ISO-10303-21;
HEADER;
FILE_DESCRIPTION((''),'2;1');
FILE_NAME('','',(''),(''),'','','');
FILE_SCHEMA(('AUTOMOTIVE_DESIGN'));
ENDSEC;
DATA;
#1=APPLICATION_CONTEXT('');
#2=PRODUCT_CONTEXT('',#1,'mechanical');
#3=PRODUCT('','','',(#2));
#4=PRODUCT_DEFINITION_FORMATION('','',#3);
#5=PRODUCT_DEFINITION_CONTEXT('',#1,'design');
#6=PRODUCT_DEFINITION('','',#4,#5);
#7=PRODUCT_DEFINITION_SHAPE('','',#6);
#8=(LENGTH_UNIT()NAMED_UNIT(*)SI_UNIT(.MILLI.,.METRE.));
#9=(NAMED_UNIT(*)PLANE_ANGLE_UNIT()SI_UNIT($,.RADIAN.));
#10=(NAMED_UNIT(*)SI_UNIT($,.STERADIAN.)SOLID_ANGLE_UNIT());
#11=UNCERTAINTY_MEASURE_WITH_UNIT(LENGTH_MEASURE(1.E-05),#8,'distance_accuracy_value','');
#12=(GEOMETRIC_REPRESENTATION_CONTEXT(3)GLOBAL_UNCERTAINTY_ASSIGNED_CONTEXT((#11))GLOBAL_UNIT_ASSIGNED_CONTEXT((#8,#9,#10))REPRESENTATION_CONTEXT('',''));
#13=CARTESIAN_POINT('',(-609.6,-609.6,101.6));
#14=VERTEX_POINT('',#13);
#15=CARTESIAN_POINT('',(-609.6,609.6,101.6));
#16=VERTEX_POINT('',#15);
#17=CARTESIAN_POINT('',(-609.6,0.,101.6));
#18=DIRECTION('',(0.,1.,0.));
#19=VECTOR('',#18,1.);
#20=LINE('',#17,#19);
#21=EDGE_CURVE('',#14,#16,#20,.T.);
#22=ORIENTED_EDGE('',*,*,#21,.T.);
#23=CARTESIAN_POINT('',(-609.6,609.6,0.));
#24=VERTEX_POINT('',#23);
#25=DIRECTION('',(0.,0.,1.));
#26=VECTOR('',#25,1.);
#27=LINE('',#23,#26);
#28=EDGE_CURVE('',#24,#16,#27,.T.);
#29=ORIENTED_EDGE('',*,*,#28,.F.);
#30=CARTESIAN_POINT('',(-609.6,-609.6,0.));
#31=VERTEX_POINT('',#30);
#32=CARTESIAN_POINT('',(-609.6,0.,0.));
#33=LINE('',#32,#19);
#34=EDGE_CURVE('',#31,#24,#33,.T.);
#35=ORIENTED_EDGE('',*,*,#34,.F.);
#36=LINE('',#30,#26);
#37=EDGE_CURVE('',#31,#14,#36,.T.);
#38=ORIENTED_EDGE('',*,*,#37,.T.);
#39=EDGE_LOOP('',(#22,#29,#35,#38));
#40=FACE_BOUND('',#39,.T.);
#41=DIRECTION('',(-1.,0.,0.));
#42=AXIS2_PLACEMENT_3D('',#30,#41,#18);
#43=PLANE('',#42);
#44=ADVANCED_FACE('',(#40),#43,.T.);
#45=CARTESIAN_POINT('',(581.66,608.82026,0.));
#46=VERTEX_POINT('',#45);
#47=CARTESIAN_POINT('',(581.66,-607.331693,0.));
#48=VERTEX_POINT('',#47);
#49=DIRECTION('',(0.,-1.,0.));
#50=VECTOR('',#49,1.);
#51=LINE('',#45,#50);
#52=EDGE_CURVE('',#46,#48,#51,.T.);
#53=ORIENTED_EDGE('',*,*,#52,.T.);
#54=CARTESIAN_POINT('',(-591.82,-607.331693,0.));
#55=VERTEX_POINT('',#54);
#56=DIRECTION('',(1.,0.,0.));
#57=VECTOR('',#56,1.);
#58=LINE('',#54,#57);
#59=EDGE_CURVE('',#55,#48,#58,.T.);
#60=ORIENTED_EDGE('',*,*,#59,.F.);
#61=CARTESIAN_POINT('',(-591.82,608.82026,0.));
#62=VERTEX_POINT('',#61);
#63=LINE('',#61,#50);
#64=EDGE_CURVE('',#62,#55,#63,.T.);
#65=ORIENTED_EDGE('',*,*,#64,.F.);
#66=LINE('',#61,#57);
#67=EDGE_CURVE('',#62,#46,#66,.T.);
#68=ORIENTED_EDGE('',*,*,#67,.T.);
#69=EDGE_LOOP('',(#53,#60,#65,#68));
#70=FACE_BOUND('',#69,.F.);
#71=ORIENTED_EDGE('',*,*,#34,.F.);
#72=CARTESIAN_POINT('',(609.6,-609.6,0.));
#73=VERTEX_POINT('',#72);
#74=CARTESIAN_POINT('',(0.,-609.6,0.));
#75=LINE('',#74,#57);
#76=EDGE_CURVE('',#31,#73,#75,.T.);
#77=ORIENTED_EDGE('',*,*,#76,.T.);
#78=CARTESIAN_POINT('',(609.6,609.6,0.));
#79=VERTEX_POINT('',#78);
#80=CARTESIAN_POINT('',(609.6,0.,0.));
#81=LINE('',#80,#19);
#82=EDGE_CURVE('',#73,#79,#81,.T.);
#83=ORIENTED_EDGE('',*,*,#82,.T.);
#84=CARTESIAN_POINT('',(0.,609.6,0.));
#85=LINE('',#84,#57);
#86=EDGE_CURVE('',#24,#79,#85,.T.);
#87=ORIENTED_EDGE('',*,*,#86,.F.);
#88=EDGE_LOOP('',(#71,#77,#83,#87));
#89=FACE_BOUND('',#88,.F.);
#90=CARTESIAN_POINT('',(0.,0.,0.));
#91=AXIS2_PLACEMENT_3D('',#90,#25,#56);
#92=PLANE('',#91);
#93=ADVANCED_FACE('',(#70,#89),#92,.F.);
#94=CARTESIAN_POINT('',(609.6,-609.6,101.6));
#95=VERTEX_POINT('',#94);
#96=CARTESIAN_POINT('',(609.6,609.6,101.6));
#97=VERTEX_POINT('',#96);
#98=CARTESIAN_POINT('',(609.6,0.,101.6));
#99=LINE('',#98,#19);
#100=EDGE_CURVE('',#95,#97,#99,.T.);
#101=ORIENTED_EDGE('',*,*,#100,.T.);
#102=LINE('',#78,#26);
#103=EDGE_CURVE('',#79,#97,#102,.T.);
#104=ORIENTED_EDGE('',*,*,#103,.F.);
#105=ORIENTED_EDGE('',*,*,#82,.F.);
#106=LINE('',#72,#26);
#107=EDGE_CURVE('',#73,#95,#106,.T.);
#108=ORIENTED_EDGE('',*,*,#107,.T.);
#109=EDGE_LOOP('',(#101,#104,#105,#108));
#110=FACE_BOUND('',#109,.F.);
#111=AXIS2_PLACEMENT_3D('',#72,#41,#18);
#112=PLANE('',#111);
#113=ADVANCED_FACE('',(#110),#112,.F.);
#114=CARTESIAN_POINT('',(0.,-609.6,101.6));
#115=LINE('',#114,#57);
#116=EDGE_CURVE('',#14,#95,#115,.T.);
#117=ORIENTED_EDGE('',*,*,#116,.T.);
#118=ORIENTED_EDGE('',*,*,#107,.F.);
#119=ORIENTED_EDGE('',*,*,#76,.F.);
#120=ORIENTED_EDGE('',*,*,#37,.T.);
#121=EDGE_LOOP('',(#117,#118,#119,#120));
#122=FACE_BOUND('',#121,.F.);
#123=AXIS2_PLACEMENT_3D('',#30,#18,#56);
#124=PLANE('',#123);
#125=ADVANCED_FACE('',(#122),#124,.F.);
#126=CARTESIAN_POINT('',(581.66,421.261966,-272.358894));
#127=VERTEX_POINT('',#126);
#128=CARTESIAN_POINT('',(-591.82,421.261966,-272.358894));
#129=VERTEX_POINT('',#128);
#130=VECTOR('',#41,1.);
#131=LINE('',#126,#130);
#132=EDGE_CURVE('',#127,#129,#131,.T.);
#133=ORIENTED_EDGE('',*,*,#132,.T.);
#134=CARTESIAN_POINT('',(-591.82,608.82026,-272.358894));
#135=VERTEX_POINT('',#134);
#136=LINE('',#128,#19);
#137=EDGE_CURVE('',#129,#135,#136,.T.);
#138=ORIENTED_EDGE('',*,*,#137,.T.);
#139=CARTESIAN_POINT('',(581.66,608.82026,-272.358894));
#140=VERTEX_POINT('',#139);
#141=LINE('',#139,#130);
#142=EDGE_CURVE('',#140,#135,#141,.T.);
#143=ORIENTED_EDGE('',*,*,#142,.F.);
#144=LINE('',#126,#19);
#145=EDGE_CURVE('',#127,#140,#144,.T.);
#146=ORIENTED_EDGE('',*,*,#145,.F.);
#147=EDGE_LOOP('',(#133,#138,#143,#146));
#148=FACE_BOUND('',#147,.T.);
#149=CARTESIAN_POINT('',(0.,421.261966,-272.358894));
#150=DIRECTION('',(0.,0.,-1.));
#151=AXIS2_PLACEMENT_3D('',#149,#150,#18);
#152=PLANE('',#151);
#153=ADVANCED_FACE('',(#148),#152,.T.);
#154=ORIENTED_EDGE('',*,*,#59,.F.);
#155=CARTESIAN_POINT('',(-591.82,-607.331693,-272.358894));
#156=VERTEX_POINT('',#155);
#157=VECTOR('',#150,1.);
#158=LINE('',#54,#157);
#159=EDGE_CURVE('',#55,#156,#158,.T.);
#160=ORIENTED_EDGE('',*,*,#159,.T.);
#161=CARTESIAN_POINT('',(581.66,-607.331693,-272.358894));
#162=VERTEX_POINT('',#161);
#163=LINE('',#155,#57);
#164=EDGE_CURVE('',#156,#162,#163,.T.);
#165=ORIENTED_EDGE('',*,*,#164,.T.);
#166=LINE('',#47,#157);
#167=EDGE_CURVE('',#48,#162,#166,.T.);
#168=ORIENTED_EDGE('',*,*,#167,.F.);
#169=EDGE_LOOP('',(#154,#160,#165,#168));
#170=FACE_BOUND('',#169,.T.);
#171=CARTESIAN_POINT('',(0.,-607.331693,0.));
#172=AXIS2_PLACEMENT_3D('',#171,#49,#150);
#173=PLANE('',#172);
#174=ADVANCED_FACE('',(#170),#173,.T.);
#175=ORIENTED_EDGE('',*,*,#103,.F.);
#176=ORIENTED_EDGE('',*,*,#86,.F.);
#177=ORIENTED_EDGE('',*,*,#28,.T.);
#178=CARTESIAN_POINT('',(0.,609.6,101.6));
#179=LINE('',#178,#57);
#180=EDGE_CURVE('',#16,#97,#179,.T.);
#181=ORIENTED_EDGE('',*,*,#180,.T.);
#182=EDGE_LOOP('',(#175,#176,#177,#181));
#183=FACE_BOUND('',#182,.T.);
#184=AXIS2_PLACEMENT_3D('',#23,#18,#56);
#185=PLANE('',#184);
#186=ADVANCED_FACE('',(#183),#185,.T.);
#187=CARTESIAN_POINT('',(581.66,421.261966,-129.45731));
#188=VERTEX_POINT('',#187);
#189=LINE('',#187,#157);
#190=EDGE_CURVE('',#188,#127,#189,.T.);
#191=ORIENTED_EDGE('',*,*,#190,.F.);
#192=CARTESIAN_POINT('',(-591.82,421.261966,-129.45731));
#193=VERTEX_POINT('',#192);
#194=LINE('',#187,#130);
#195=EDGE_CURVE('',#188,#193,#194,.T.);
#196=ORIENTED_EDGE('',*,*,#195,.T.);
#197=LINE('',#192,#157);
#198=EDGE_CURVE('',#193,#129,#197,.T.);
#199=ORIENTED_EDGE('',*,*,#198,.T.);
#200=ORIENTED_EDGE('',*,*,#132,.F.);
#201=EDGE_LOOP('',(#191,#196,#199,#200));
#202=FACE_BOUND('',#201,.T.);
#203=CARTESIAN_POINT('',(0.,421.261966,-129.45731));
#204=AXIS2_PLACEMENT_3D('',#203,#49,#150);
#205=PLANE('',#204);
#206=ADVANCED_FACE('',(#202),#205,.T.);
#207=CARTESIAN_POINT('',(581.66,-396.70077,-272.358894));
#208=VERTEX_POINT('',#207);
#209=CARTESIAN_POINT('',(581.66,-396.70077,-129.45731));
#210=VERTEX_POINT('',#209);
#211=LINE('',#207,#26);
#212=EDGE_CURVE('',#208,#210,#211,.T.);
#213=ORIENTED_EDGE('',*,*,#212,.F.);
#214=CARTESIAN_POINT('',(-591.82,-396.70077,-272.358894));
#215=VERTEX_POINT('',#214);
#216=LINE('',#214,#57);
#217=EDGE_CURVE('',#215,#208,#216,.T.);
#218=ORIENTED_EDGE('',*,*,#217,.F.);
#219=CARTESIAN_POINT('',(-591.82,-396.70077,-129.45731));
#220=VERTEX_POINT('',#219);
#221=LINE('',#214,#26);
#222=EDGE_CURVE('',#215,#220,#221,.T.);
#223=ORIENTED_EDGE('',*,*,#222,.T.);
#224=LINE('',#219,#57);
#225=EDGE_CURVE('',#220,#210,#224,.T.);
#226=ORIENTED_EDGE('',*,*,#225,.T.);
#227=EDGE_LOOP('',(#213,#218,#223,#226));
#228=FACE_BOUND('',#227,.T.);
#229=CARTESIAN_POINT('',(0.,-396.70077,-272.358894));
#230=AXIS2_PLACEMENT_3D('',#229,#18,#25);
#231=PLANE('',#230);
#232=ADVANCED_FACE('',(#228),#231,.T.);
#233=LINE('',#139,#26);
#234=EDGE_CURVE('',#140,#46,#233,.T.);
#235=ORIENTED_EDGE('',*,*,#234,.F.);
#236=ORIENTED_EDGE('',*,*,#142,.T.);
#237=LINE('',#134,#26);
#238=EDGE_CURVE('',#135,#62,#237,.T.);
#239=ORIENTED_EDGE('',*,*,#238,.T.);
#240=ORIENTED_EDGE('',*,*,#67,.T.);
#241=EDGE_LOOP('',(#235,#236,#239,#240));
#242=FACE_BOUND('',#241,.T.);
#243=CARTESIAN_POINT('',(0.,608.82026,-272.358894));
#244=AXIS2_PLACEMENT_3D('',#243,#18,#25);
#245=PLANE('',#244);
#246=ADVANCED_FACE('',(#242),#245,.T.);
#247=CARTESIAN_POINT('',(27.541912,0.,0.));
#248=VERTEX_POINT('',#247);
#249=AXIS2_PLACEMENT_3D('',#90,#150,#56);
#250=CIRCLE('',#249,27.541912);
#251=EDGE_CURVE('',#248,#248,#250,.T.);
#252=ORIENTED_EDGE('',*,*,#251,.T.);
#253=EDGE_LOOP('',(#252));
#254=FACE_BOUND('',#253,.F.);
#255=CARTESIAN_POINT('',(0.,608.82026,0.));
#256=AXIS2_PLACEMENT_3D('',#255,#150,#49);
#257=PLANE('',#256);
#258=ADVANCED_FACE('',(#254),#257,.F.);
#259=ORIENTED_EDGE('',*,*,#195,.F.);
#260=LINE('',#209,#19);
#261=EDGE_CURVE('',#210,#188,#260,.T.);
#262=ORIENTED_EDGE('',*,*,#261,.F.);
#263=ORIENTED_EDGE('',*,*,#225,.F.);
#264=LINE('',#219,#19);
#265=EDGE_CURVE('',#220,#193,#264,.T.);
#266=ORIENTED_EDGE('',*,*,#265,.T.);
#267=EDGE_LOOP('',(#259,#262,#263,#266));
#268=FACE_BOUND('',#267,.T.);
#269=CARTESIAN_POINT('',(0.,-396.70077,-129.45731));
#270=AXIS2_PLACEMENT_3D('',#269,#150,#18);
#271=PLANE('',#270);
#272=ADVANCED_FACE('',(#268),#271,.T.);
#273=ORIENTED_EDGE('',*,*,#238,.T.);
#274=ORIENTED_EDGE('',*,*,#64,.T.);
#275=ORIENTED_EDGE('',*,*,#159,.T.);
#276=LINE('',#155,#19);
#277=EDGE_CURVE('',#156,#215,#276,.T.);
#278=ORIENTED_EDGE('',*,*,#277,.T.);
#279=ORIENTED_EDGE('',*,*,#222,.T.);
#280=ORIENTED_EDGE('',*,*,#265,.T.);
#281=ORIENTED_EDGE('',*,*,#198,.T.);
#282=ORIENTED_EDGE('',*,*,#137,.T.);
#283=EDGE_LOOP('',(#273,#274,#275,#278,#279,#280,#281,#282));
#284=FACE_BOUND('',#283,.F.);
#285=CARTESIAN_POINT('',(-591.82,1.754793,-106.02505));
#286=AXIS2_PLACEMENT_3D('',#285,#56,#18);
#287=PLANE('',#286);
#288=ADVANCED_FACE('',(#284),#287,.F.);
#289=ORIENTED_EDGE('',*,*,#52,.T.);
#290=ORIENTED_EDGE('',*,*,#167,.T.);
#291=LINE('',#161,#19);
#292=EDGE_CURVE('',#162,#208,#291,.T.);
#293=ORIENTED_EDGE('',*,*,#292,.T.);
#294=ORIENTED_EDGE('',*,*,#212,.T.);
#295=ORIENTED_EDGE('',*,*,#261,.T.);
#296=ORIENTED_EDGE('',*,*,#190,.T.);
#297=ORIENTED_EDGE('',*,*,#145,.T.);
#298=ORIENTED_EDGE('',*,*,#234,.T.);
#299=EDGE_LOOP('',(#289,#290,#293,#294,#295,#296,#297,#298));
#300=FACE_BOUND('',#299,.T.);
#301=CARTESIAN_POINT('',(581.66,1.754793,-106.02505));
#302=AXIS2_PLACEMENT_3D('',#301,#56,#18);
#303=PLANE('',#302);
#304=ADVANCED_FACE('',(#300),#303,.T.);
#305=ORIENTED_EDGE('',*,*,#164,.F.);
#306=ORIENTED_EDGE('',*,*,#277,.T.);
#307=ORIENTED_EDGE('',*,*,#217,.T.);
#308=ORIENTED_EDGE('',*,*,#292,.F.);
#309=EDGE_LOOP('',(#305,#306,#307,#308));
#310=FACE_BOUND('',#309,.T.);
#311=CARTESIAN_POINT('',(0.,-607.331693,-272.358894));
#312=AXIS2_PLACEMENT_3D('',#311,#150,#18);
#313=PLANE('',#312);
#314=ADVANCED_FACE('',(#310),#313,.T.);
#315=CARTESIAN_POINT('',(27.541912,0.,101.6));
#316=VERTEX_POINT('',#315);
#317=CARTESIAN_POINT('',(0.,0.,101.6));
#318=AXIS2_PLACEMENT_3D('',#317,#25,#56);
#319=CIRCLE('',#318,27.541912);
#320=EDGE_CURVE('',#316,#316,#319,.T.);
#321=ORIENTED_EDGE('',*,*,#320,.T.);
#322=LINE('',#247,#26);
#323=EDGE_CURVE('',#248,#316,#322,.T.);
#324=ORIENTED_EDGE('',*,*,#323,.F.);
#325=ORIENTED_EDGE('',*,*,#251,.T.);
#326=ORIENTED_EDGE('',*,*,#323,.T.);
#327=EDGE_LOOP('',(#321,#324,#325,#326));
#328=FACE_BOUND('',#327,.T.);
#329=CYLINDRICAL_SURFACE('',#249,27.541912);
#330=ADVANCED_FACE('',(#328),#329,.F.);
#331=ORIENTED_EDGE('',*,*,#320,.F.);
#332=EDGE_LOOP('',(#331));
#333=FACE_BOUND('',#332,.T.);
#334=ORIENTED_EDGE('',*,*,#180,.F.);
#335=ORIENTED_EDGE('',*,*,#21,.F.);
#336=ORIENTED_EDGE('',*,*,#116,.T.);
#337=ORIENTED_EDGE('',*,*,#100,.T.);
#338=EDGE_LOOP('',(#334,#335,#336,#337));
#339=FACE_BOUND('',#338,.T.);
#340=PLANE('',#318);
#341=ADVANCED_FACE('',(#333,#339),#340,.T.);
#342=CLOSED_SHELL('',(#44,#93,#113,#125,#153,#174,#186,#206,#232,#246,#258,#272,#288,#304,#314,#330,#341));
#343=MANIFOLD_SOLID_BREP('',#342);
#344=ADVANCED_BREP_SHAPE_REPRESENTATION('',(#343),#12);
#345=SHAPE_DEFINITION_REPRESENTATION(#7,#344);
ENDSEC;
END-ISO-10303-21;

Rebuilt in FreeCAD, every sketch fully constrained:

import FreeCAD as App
import Part
import Sketcher
from FreeCAD import Vector
Q = App.Units.Quantity

doc = App.newDocument("Part")
params = doc.addObject("Spreadsheet::Sheet", "Params")
for row, (alias, value) in enumerate([
    ("sketch1_width", "48 in"),
    ("pad1_length", "4 in"),
    ("pad2_length", "22.9 in"),
    ("pad2_length2", "23.3 in"),
], start=1):
    params.set(f"A{row}", alias)
    params.set(f"B{row}", "=" + value)
    params.setAlias(f"B{row}", alias)

body = doc.addObject("PartDesign::Body", "Body")

sketch1 = body.newObject("Sketcher::SketchObject", "Sketch")
sketch1.AttachmentSupport = (doc.getObject("XY_Plane"), [""])
sketch1.MapMode = "FlatFace"
sketch1.addGeometry(Part.LineSegment(Vector(-610, 610, 0), Vector(-610, -610, 0)), False)
sketch1.addGeometry(Part.LineSegment(Vector(-610, -610, 0), Vector(610, -610, 0)), False)
sketch1.addGeometry(Part.LineSegment(Vector(610, -610, 0), Vector(610, 610, 0)), False)
sketch1.addGeometry(Part.LineSegment(Vector(610, 610, 0), Vector(-610, 610, 0)), False)
sketch1.addGeometry(Part.Circle(Vector(0, 0, 0), Vector(0, 0, 1), 28), False)
sketch1.addConstraint(Sketcher.Constraint("Coincident", 0, 2, 1, 1))
sketch1.addConstraint(Sketcher.Constraint("Coincident", 1, 2, 2, 1))
sketch1.addConstraint(Sketcher.Constraint("Coincident", 2, 2, 3, 1))
sketch1.addConstraint(Sketcher.Constraint("Coincident", 3, 2, 0, 1))
sketch1.addConstraint(Sketcher.Constraint("Vertical", 0))
sketch1.addConstraint(Sketcher.Constraint("Horizontal", 1))
sketch1.addConstraint(Sketcher.Constraint("Vertical", 2))
sketch1.addConstraint(Sketcher.Constraint("Horizontal", 3))
sketch1.addConstraint(Sketcher.Constraint("Coincident", 4, 3, -1, 1))
sketch1.addConstraint(Sketcher.Constraint("Symmetric", 0, 2, 2, 2, -1, 1))
sketch1.addConstraint(Sketcher.Constraint("Equal", 3, 0))
sketch1.addConstraint(Sketcher.Constraint("DistanceX", 1, 1, 1, 2, Q("48 in")))
sketch1.addConstraint(Sketcher.Constraint("Diameter", 4, Q("55.083824 mm")))
sketch1.setExpression("Constraints[11]", "Params.sketch1_width")
pad1 = body.newObject("PartDesign::Pad", "Pad")
pad1.Profile = sketch1
pad1.setExpression("Length", "Params.pad1_length")

sketch2 = body.newObject("Sketcher::SketchObject", "Sketch001")
sketch2.AttachmentSupport = (doc.getObject("YZ_Plane"), [""])
sketch2.MapMode = "FlatFace"
sketch2.addGeometry(Part.LineSegment(Vector(609, -272, 0), Vector(609, 0, 0)), False)
sketch2.addGeometry(Part.LineSegment(Vector(609, 0, 0), Vector(-607, 0, 0)), False)
sketch2.addGeometry(Part.LineSegment(Vector(-607, 0, 0), Vector(-607, -272, 0)), False)
sketch2.addGeometry(Part.LineSegment(Vector(-607, -272, 0), Vector(-397, -272, 0)), False)
sketch2.addGeometry(Part.LineSegment(Vector(-397, -272, 0), Vector(-397, -129, 0)), False)
sketch2.addGeometry(Part.LineSegment(Vector(-397, -129, 0), Vector(421, -129, 0)), False)
sketch2.addGeometry(Part.LineSegment(Vector(421, -129, 0), Vector(421, -272, 0)), False)
sketch2.addGeometry(Part.LineSegment(Vector(421, -272, 0), Vector(609, -272, 0)), False)
sketch2.addConstraint(Sketcher.Constraint("Coincident", 0, 2, 1, 1))
sketch2.addConstraint(Sketcher.Constraint("Coincident", 1, 2, 2, 1))
sketch2.addConstraint(Sketcher.Constraint("Coincident", 2, 2, 3, 1))
sketch2.addConstraint(Sketcher.Constraint("Coincident", 3, 2, 4, 1))
sketch2.addConstraint(Sketcher.Constraint("Coincident", 4, 2, 5, 1))
sketch2.addConstraint(Sketcher.Constraint("Coincident", 5, 2, 6, 1))
sketch2.addConstraint(Sketcher.Constraint("Coincident", 6, 2, 7, 1))
sketch2.addConstraint(Sketcher.Constraint("Coincident", 7, 2, 0, 1))
sketch2.addConstraint(Sketcher.Constraint("Vertical", 0))
sketch2.addConstraint(Sketcher.Constraint("Horizontal", 1))
sketch2.addConstraint(Sketcher.Constraint("Vertical", 2))
sketch2.addConstraint(Sketcher.Constraint("Horizontal", 3))
sketch2.addConstraint(Sketcher.Constraint("Vertical", 4))
sketch2.addConstraint(Sketcher.Constraint("Horizontal", 5))
sketch2.addConstraint(Sketcher.Constraint("Vertical", 6))
sketch2.addConstraint(Sketcher.Constraint("Horizontal", 7))
sketch2.addConstraint(Sketcher.Constraint("PointOnObject", 0, 2, -1))
sketch2.addConstraint(Sketcher.Constraint("Horizontal", 3, 2, 6, 2))
sketch2.addConstraint(Sketcher.Constraint("DistanceX", 1, 2, 1, 1, Q("1216.151953 mm")))
sketch2.addConstraint(Sketcher.Constraint("DistanceX", 3, 1, 3, 2, Q("210.630923 mm")))
sketch2.addConstraint(Sketcher.Constraint("DistanceX", 5, 1, 5, 2, Q("817.962736 mm")))
sketch2.addConstraint(Sketcher.Constraint("DistanceY", 0, 1, 0, 2, Q("272.358894 mm")))
sketch2.addConstraint(Sketcher.Constraint("DistanceY", 4, 1, 4, 2, Q("142.901584 mm")))
sketch2.addConstraint(Sketcher.Constraint("DistanceX", -1, 1, 0, 2, Q("608.82026 mm")))
pad2 = body.newObject("PartDesign::Pad", "Pad001")
pad2.Profile = sketch2
pad2.Type = "TwoLengths"
pad2.setExpression("Length", "Params.pad2_length")
pad2.setExpression("Length2", "Params.pad2_length2")

doc.recompute()
